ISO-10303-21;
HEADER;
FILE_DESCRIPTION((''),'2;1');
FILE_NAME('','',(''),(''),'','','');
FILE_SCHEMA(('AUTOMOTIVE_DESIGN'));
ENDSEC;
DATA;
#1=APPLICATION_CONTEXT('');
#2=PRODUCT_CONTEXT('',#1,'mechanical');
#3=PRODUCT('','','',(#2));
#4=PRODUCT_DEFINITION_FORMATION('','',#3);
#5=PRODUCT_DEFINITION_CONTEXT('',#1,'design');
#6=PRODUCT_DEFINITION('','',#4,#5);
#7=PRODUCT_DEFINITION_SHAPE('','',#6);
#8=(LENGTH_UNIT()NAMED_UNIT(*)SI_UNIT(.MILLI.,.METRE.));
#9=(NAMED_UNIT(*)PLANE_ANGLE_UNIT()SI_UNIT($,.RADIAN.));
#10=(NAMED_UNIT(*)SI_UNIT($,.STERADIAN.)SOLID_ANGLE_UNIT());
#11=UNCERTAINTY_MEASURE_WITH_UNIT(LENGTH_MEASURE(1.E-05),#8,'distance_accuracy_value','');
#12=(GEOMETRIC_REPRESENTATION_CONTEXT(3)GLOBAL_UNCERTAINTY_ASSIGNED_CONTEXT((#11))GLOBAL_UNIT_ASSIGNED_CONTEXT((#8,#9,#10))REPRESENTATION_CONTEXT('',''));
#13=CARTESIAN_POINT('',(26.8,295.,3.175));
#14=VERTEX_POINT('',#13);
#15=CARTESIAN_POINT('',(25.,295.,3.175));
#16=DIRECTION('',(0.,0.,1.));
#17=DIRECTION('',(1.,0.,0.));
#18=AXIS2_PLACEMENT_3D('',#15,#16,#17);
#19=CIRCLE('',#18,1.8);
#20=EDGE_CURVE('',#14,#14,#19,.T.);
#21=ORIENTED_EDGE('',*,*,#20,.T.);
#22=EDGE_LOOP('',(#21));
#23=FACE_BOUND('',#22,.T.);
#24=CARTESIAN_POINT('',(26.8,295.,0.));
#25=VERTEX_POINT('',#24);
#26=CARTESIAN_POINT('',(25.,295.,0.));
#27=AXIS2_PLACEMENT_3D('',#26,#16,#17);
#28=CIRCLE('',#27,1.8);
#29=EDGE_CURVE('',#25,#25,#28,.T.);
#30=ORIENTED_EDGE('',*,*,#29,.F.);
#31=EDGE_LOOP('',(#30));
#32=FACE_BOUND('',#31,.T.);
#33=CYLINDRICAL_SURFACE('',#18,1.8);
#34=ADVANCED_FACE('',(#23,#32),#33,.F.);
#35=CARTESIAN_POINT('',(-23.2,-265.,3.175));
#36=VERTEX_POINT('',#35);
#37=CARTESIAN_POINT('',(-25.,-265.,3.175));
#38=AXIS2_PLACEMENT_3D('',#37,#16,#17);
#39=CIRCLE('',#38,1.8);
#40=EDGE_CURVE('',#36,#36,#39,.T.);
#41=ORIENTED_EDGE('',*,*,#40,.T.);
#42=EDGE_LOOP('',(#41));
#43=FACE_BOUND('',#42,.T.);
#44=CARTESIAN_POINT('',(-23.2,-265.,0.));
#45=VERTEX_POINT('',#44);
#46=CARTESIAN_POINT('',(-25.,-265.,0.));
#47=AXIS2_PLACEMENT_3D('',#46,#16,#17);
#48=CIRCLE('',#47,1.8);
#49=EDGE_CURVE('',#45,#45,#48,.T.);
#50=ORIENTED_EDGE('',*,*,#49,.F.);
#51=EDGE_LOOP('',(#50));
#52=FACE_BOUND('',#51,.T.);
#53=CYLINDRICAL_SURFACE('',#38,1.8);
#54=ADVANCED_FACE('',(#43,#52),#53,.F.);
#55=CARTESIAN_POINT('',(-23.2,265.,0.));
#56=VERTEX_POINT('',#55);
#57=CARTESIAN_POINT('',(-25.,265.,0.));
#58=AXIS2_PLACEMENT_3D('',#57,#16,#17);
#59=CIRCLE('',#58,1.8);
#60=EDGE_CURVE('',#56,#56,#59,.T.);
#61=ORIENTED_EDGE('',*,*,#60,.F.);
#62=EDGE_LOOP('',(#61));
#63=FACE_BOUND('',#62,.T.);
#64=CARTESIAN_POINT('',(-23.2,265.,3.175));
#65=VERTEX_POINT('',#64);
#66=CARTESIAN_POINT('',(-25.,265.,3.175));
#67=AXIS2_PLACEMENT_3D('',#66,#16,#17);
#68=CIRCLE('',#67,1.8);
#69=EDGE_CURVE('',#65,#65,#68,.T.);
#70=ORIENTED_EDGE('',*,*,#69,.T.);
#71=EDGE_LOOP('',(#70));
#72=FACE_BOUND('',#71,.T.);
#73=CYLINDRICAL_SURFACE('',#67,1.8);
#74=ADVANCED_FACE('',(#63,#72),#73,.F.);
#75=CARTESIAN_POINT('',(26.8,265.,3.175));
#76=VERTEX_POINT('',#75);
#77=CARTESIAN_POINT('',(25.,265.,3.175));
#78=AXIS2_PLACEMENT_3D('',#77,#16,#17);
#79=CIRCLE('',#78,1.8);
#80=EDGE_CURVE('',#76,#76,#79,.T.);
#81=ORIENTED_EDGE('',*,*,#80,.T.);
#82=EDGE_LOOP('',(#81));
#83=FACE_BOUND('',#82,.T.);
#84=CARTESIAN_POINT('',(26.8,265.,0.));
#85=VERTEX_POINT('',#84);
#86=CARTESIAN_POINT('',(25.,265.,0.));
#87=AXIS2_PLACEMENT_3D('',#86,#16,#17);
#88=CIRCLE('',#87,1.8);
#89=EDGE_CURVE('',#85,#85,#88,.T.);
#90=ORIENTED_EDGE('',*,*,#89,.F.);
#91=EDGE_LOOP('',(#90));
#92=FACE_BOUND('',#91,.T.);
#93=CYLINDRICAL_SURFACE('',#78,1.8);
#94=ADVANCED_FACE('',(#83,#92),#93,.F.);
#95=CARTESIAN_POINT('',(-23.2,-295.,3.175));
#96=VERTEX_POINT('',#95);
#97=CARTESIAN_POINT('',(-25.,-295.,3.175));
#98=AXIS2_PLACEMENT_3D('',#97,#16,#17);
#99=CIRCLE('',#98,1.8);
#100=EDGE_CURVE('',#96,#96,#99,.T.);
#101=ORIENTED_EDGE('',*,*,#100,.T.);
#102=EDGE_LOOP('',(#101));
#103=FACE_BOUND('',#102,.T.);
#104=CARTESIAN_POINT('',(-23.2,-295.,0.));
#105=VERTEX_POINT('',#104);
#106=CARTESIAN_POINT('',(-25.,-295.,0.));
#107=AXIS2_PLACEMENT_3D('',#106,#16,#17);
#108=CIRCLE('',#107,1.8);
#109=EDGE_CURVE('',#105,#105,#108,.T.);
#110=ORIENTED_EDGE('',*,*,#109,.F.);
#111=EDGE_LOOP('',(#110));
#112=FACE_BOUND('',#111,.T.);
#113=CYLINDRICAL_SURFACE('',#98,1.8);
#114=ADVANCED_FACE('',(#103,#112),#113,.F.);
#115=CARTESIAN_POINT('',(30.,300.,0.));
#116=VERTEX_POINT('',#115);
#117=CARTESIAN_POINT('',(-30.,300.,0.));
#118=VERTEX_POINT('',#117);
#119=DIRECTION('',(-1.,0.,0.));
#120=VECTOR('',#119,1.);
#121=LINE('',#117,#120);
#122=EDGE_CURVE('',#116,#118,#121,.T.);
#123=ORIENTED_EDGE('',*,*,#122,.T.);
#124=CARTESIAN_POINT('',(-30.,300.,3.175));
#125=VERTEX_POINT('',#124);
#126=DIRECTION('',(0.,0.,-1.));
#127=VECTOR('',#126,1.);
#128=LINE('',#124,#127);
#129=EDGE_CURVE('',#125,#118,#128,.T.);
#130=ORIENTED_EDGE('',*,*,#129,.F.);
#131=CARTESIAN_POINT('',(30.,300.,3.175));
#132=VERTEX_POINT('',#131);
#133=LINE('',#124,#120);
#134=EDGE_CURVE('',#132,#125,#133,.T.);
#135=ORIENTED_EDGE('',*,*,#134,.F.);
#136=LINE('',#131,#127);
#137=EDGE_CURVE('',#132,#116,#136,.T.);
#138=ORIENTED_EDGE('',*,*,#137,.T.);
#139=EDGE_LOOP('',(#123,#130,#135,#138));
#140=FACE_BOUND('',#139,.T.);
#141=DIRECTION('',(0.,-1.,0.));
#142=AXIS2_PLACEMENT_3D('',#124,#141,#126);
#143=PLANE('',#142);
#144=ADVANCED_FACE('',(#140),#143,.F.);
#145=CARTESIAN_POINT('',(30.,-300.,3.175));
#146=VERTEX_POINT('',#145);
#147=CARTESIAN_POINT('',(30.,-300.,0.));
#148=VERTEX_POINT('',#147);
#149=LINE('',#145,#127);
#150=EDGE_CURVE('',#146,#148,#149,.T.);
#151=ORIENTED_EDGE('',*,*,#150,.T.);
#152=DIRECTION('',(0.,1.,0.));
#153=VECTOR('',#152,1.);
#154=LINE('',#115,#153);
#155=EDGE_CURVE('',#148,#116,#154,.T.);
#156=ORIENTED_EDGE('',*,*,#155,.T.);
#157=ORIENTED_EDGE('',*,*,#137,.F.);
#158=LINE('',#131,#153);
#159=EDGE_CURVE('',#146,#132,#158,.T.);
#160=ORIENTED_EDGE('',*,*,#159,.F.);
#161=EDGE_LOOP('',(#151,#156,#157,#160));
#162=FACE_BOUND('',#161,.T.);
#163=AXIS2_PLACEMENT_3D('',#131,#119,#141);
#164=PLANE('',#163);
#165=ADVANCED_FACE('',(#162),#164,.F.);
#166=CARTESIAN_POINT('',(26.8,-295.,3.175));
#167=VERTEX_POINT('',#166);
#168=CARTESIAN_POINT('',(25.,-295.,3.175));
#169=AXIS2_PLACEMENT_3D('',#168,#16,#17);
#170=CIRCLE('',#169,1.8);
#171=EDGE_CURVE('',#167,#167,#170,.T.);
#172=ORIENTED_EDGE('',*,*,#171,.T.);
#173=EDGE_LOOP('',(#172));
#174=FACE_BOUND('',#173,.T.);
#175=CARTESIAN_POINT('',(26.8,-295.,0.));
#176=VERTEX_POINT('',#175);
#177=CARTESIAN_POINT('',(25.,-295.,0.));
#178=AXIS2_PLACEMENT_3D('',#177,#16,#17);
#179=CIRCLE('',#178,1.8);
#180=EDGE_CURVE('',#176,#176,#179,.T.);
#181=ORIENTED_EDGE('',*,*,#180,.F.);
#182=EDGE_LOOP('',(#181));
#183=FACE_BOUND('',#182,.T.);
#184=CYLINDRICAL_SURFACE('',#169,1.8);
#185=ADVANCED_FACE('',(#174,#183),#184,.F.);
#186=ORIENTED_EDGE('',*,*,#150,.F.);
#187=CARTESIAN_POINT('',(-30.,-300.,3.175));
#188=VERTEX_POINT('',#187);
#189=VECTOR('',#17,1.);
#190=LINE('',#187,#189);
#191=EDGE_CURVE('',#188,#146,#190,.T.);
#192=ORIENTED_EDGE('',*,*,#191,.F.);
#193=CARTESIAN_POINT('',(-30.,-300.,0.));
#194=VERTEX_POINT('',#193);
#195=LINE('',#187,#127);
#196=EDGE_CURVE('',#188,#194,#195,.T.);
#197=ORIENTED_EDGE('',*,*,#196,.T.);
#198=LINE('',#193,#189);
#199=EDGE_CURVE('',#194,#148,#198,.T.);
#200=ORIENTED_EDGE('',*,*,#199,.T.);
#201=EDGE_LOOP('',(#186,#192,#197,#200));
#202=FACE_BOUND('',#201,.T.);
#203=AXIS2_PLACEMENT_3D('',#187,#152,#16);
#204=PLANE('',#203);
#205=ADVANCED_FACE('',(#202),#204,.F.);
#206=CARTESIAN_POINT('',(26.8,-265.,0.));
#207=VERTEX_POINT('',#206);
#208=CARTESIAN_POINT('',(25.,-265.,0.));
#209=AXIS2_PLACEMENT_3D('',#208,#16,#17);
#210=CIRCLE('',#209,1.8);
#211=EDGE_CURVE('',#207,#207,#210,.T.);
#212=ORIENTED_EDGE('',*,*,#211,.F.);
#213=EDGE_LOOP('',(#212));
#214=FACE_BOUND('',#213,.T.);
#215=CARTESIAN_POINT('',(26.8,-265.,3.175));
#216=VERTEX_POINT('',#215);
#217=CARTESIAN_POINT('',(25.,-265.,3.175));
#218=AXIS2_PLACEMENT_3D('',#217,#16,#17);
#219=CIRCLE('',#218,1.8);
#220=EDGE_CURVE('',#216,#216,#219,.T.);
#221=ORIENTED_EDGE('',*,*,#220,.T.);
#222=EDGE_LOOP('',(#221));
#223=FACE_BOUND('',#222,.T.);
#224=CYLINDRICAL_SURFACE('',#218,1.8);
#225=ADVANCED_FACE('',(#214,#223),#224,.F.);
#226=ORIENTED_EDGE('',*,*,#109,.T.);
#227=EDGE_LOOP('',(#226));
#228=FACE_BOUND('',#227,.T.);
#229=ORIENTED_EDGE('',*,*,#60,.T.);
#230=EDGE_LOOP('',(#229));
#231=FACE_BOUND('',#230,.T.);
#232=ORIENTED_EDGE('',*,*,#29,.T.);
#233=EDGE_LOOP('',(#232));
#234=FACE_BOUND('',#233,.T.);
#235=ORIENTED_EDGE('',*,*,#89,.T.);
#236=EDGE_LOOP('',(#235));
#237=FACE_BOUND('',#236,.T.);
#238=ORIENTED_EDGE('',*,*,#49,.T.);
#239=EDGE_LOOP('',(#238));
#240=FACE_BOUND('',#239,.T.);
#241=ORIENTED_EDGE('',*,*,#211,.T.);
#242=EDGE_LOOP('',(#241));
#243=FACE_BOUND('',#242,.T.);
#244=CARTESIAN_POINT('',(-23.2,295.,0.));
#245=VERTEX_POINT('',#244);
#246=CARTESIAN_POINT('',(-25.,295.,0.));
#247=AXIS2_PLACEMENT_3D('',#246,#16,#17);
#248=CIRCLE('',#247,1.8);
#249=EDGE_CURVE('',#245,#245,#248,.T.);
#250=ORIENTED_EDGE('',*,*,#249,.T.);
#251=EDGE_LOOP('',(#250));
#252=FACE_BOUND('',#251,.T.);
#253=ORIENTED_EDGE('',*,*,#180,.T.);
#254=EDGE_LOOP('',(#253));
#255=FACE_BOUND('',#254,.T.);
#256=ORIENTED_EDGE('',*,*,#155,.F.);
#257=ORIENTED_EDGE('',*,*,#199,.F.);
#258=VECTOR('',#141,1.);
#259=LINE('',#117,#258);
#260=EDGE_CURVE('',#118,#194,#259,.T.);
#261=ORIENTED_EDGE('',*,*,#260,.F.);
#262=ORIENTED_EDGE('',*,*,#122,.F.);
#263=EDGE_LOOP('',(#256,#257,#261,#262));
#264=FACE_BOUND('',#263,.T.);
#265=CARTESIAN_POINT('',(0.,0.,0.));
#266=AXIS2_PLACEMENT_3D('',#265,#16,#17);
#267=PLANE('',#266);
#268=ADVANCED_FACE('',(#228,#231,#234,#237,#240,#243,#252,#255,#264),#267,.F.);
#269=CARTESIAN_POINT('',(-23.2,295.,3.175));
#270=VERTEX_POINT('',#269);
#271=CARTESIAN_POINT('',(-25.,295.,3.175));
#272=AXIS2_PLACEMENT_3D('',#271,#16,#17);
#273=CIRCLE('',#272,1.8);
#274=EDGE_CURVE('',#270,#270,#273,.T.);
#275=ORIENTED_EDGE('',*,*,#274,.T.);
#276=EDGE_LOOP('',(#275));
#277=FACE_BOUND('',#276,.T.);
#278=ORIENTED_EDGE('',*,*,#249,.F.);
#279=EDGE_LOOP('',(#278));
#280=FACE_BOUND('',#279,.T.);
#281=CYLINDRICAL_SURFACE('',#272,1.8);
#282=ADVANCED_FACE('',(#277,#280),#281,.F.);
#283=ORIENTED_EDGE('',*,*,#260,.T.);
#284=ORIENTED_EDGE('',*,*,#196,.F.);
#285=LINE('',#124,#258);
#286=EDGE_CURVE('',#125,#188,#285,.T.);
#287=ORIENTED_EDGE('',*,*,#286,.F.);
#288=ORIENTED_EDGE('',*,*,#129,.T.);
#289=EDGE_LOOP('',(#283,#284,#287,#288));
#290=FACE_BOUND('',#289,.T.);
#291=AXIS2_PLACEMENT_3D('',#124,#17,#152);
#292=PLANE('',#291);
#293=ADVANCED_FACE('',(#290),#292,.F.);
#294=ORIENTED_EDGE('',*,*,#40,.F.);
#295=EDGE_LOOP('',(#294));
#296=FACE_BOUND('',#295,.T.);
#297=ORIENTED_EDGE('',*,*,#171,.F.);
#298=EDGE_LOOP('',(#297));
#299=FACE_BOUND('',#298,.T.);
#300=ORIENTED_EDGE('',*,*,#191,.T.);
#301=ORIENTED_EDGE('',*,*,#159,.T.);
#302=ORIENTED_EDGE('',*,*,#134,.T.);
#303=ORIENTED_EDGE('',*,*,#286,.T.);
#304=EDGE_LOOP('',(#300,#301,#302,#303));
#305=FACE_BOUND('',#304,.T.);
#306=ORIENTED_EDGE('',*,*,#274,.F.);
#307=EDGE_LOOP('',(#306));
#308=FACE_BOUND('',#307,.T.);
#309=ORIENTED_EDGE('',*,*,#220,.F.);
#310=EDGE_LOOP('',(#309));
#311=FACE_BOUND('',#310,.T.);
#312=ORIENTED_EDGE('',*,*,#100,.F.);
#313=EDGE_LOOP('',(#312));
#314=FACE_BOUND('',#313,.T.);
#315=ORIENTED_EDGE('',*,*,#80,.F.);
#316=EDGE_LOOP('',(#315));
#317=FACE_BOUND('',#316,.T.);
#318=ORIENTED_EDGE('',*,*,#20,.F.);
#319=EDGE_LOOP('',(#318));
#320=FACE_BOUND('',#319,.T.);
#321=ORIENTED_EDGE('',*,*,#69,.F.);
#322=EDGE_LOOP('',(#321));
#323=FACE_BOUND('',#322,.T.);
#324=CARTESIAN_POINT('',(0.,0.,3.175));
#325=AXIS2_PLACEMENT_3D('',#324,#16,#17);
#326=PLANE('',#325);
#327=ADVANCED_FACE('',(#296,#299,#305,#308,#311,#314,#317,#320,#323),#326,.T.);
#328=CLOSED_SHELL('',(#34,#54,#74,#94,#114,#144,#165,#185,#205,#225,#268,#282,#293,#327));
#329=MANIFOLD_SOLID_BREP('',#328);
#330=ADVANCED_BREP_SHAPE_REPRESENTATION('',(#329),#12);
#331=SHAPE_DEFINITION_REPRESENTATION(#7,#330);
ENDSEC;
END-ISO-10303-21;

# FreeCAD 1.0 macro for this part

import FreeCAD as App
import Part
import Sketcher


def add_polygon(sketch, points):
    """Adds a closed chain of lines whose ends are joined by coincident constraints."""
    first, n = sketch.GeometryCount, len(points)
    for a, b in zip(points, points[1:] + points[:1]):
        sketch.addGeometry(Part.LineSegment(App.Vector(*a, 0), App.Vector(*b, 0)), False)
    for i in range(n):
        sketch.addConstraint(Sketcher.Constraint("Coincident", first + i, 2, first + (i + 1) % n, 1))

doc = App.newDocument("Part")
params = doc.addObject("Spreadsheet::Sheet", "Params")
for row, (alias, value) in enumerate([
    ("sketch1_width", "60 mm"),
    ("sketch1_height", "600 mm"),
    ("pad1_length", "3.175 mm"),
    ("sketch2_diameter", "3.6 mm"),
    ("hole_diameter", "3.6 mm"),
    ("hole_depth", "3.918451 mm"),
], start=1):
    params.set(f"A{row}", alias)
    params.set(f"B{row}", "=" + value)
    params.setAlias(f"B{row}", alias)

body = doc.addObject("PartDesign::Body", "Body")

# Sketch on XY plane
sketch1 = body.newObject("Sketcher::SketchObject", "Sketch")
sketch1.AttachmentSupport = (doc.getObject("XY_Plane"), [""])
sketch1.MapMode = "FlatFace"
add_polygon(sketch1, [(-30, 300), (-30, -300), (30, -300), (30, 300)])  # lines 0-3
sketch1.addConstraint(Sketcher.Constraint("Vertical", 0))
sketch1.addConstraint(Sketcher.Constraint("Horizontal", 1))
sketch1.addConstraint(Sketcher.Constraint("Vertical", 2))
sketch1.addConstraint(Sketcher.Constraint("Horizontal", 3))
sketch1.addConstraint(Sketcher.Constraint("Symmetric", 0, 2, 2, 2, -1, 1))
sketch1.addConstraint(Sketcher.Constraint("DistanceX", 1, 1, 1, 2, 60.0))
sketch1.addConstraint(Sketcher.Constraint("DistanceY", 0, 2, 0, 1, 600.0))
sketch1.setExpression("Constraints[9]", "Params.sketch1_width")
sketch1.setExpression("Constraints[10]", "Params.sketch1_height")
pad1 = body.newObject("PartDesign::Pad", "Pad")
pad1.Profile = sketch1
pad1.setExpression("Length", "Params.pad1_length")

# Sketch on XY plane
sketch2 = body.newObject("Sketcher::SketchObject", "Sketch001")
sketch2.AttachmentSupport = (doc.getObject("XY_Plane"), [""])
sketch2.MapMode = "FlatFace"
sketch2.AttachmentOffset = App.Placement(App.Vector(0, 0, 3.175), App.Rotation())
sketch2.addGeometry(Part.Circle(App.Vector(25, -295, 0), App.Vector(0, 0, 1), 1.8), False)
sketch2.addGeometry(Part.Circle(App.Vector(-25, -265, 0), App.Vector(0, 0, 1), 1.8), False)
sketch2.addGeometry(Part.Circle(App.Vector(-25, -295, 0), App.Vector(0, 0, 1), 1.8), False)
sketch2.addGeometry(Part.Circle(App.Vector(25, -265, 0), App.Vector(0, 0, 1), 1.8), False)
sketch2.addGeometry(Part.Circle(App.Vector(-25, 265, 0), App.Vector(0, 0, 1), 1.8), False)
sketch2.addGeometry(Part.Circle(App.Vector(-25, 295, 0), App.Vector(0, 0, 1), 1.8), False)
sketch2.addGeometry(Part.Circle(App.Vector(25, 295, 0), App.Vector(0, 0, 1), 1.8), False)
sketch2.addGeometry(Part.Circle(App.Vector(25, 265, 0), App.Vector(0, 0, 1), 1.8), False)
sketch2.addConstraint(Sketcher.Constraint("Equal", 0, 1))
sketch2.addConstraint(Sketcher.Constraint("Equal", 1, 2))
sketch2.addConstraint(Sketcher.Constraint("Equal", 2, 3))
sketch2.addConstraint(Sketcher.Constraint("Equal", 3, 4))
sketch2.addConstraint(Sketcher.Constraint("Equal", 4, 5))
sketch2.addConstraint(Sketcher.Constraint("Equal", 5, 6))
sketch2.addConstraint(Sketcher.Constraint("Equal", 6, 7))
sketch2.addConstraint(Sketcher.Constraint("Symmetric", 3, 3, 4, 3, -1, 1))
sketch2.addConstraint(Sketcher.Constraint("Symmetric", 0, 3, 5, 3, -1, 1))
sketch2.addConstraint(Sketcher.Constraint("Symmetric", 2, 3, 6, 3, -1, 1))
sketch2.addConstraint(Sketcher.Constraint("Symmetric", 1, 3, 7, 3, -1, 1))
sketch2.addConstraint(Sketcher.Constraint("Symmetric", 0, 3, 2, 3, -2))
sketch2.addConstraint(Sketcher.Constraint("Symmetric", 1, 3, 3, 3, -2))
sketch2.addConstraint(Sketcher.Constraint("Vertical", 1, 3, 2, 3))
sketch2.addConstraint(Sketcher.Constraint("Diameter", 0, 3.6))
sketch2.addConstraint(Sketcher.Constraint("DistanceX", -1, 1, 0, 3, 25.0))
sketch2.addConstraint(Sketcher.Constraint("DistanceY", 0, 3, -1, 1, 295.0))
sketch2.addConstraint(Sketcher.Constraint("DistanceY", 1, 3, -1, 1, 265.0))
sketch2.setExpression("Constraints[14]", "Params.sketch2_diameter")
doc.recompute()
hole = body.newObject("PartDesign::Hole", "Hole")
hole.Profile = sketch2
hole.ThreadType = "None"
hole.setExpression("Diameter", "Params.hole_diameter")
hole.DepthType = "Dimension"
hole.setExpression("Depth", "Params.hole_depth")
hole.DrillPoint = "Angled"
hole.DrillPointAngle = 118

doc.recompute()
